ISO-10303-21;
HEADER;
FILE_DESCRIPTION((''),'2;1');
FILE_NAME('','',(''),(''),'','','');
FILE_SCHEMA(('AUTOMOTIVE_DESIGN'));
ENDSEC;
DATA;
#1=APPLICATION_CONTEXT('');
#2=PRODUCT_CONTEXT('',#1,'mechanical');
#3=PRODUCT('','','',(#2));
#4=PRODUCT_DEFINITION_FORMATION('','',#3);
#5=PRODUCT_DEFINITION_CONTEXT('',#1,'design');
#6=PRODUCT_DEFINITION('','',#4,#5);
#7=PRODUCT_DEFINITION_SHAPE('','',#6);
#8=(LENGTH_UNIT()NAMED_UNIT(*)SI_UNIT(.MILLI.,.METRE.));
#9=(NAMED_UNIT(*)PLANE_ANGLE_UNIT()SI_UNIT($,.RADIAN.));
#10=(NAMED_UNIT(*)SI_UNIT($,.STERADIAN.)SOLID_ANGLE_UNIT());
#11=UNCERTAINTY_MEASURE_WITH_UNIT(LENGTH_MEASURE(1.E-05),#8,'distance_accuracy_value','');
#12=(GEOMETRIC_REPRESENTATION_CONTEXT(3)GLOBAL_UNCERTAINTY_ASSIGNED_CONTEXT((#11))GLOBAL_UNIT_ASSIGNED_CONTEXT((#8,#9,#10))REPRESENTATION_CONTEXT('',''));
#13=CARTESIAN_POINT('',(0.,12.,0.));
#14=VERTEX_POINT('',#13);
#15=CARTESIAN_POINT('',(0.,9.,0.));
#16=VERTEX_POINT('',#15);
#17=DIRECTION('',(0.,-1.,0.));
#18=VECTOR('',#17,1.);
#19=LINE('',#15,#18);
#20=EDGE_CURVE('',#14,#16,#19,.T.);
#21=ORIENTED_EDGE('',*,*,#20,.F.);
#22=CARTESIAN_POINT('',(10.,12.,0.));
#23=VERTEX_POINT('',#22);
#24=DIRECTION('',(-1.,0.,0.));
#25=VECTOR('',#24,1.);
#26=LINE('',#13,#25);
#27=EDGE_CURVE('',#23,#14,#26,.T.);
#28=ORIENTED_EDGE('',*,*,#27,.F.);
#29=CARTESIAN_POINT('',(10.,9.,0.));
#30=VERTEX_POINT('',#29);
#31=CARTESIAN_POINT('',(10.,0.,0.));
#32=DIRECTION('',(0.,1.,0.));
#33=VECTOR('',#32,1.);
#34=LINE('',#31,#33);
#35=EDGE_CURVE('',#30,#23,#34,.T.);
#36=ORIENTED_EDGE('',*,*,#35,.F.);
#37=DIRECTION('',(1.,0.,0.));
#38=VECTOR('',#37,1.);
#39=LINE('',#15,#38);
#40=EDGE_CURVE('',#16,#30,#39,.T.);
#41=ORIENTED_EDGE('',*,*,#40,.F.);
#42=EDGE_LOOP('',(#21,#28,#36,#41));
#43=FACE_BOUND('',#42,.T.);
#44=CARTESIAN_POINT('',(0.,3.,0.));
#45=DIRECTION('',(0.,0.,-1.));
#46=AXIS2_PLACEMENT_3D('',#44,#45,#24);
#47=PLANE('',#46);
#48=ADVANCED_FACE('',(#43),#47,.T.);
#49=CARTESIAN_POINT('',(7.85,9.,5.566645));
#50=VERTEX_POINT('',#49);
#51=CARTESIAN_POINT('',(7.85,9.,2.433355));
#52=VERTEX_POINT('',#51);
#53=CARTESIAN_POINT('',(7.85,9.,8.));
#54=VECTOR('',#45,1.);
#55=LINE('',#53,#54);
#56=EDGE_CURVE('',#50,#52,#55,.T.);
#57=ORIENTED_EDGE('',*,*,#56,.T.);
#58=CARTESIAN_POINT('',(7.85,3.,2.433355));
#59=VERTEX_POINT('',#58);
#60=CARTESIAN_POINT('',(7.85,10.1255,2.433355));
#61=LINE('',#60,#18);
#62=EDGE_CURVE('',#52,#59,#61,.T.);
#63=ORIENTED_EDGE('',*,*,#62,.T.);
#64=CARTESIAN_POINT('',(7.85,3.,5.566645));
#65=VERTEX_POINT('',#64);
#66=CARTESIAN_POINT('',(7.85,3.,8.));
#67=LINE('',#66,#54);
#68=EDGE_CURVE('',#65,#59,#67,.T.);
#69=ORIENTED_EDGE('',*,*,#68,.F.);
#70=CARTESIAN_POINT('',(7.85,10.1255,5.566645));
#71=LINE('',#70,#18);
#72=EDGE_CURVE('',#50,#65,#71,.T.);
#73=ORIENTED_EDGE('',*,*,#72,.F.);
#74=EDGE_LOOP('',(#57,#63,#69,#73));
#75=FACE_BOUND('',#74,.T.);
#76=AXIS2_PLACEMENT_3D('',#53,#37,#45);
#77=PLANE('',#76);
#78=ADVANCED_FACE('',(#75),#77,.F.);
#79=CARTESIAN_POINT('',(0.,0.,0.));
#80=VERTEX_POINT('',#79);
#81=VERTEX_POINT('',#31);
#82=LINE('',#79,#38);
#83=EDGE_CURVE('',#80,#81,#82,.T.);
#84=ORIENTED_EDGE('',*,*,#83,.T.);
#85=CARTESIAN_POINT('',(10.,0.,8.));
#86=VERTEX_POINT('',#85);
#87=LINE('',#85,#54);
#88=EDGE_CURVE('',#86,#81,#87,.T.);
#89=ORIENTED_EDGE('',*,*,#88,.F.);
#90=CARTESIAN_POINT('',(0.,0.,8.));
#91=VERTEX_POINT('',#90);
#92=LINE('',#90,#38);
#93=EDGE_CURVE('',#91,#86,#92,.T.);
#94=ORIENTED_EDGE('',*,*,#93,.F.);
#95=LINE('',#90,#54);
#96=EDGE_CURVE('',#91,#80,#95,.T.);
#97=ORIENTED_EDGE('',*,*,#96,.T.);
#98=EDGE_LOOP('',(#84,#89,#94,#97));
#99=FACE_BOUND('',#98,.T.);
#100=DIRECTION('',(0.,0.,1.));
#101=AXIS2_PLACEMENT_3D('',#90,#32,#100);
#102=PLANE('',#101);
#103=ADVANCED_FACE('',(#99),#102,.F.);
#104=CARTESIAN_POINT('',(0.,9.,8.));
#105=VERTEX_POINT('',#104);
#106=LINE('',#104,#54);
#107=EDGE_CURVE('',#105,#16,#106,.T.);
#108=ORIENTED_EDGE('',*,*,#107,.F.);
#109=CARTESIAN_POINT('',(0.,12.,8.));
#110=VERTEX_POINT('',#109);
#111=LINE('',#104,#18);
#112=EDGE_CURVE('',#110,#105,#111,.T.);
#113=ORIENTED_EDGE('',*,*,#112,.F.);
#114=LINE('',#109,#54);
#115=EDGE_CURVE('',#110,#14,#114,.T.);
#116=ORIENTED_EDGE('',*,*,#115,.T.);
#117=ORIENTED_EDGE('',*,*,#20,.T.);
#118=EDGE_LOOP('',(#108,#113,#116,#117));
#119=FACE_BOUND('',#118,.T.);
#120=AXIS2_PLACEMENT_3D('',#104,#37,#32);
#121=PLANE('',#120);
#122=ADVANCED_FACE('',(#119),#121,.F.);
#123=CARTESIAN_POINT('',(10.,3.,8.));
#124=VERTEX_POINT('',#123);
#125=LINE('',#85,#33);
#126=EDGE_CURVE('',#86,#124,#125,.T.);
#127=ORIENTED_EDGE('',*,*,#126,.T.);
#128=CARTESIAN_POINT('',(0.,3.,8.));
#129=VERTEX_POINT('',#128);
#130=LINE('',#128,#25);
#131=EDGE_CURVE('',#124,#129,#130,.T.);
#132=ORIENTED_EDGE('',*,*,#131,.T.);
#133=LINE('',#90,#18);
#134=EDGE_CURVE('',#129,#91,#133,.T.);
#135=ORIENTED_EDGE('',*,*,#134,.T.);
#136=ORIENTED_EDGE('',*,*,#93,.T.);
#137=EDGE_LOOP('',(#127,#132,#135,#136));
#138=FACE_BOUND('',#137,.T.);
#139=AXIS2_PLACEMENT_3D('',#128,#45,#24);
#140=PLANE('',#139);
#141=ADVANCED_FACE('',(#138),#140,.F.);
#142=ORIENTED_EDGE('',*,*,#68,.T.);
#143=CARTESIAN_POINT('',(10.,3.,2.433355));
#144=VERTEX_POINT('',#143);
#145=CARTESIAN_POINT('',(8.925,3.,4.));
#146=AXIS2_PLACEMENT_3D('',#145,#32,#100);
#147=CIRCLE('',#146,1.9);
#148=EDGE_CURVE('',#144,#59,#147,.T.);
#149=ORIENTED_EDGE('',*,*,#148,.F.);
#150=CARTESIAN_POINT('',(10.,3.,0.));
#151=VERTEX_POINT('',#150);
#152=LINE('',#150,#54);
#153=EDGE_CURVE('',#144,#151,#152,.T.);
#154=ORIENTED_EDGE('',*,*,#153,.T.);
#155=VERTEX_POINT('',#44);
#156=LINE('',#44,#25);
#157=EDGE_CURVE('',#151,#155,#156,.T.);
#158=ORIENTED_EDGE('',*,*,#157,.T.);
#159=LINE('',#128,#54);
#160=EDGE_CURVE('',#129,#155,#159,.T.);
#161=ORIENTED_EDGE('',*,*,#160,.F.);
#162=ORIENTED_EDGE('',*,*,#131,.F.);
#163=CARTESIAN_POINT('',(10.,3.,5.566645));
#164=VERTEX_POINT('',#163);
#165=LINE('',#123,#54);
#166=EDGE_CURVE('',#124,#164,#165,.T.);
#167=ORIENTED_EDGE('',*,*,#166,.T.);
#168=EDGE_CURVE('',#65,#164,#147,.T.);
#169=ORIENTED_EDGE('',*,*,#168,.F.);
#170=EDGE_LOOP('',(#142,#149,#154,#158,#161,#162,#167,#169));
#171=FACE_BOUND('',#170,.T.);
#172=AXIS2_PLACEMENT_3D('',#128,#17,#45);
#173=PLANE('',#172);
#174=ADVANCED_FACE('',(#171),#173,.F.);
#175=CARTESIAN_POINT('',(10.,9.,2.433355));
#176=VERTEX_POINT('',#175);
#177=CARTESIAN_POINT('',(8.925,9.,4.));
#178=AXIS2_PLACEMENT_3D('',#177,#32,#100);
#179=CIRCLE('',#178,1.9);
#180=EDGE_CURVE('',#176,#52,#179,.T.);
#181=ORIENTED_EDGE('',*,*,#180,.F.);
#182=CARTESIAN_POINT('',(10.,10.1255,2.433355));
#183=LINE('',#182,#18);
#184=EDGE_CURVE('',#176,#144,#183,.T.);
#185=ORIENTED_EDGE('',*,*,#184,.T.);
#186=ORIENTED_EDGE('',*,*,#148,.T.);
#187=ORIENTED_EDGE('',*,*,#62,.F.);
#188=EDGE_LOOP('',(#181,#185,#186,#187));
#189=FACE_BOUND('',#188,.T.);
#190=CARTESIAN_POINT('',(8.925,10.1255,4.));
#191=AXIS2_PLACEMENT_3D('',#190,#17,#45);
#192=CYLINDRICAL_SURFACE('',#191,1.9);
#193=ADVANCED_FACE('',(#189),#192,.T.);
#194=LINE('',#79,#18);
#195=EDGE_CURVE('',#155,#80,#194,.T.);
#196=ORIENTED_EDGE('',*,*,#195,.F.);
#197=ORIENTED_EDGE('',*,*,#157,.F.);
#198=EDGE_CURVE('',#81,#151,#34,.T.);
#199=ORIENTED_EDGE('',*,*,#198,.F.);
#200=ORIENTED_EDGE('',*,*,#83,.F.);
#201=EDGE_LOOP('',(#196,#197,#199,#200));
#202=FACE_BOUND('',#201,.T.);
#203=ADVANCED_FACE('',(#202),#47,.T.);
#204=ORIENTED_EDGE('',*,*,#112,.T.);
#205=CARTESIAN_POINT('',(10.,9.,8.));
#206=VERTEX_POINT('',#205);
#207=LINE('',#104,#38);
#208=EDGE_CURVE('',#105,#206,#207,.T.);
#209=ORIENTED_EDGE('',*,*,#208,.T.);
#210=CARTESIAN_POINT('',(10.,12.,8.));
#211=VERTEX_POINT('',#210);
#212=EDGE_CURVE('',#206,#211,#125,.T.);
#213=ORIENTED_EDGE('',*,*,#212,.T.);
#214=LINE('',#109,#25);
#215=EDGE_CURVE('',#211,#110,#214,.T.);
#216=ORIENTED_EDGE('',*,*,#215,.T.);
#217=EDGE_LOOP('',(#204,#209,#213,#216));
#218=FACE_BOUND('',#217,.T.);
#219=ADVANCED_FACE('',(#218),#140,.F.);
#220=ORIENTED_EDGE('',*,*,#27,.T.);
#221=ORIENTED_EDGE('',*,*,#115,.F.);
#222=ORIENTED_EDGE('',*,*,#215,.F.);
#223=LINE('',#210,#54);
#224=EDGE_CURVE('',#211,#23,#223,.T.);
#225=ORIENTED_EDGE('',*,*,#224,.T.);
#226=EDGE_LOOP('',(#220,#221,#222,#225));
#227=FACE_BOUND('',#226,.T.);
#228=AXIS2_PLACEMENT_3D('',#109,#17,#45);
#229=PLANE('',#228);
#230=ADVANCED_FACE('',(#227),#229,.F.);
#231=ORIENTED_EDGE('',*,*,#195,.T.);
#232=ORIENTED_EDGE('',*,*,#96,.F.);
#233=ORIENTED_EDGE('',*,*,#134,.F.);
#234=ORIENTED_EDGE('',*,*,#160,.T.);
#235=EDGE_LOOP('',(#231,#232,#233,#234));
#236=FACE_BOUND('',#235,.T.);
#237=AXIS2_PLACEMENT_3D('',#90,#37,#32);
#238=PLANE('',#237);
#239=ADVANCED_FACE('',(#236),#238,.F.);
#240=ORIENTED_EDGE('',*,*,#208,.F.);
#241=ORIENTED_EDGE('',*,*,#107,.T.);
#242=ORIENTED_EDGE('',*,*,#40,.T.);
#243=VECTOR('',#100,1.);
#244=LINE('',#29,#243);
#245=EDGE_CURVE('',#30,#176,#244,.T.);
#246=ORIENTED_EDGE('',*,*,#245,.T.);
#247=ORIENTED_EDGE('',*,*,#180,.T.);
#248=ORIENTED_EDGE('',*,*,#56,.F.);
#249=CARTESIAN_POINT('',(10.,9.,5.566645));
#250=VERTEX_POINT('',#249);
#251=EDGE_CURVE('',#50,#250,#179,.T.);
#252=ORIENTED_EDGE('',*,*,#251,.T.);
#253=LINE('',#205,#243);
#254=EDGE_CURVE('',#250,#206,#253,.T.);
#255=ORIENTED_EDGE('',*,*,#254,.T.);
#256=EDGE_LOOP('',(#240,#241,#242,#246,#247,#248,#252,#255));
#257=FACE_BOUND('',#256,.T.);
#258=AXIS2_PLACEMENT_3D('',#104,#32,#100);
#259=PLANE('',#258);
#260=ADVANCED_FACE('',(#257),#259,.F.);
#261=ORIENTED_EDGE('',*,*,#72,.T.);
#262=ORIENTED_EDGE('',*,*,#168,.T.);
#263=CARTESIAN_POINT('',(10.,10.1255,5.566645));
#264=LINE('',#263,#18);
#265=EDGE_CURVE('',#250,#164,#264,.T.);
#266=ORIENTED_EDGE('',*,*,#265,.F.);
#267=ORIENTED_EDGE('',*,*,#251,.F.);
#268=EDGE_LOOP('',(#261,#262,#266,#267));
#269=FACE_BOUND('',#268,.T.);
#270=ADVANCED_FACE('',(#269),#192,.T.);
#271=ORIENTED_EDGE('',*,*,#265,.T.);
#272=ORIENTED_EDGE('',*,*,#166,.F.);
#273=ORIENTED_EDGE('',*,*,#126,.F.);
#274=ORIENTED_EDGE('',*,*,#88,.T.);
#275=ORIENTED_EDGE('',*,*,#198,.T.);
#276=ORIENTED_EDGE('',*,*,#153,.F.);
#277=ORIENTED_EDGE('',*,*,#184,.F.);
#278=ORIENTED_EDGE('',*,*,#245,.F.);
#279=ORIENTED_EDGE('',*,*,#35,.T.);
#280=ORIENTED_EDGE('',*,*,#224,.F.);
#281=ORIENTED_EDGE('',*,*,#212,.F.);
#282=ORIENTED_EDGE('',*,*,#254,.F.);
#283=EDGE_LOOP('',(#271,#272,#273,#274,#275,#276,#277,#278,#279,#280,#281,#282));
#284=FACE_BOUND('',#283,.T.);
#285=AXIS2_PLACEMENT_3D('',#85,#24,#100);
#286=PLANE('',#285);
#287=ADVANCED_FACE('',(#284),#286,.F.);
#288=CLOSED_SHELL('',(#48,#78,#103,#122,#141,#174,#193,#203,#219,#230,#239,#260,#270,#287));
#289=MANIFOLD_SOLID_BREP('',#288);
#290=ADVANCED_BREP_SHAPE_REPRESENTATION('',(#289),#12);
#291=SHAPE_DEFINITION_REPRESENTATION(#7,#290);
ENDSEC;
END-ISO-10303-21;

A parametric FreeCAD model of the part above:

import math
import FreeCAD as App
import Part
import Sketcher

V = App.Vector
Q = App.Units.Quantity


def add_polygon(sketch, points):
    """Adds a closed chain of lines whose ends are joined by coincident constraints."""
    first, n = sketch.GeometryCount, len(points)
    for a, b in zip(points, points[1:] + points[:1]):
        sketch.addGeometry(Part.LineSegment(App.Vector(*a, 0), App.Vector(*b, 0)), False)
    for i in range(n):
        sketch.addConstraint(Sketcher.Constraint("Coincident", first + i, 2, first + (i + 1) % n, 1))

doc = App.newDocument("Part")
params = doc.addObject("Spreadsheet::Sheet", "Params")
for row, (alias, value) in enumerate([
    ("sketch1_width", "10 mm"),
    ("sketch1_height", "3 mm"),
    ("sketch1_height2", "6 mm"),
    ("sketch1_width2", "7.85 mm"),
    ("pad1_length", "8 mm"),
    ("sketch2_width", "6 mm"),
    ("sketch2_height", "2.1 mm"),
    ("pocket1_length", "8 mm"),
    ("sketch3_radius", "1.9 mm"),
    ("pocket2_length", "6 mm"),
], start=1):
    params.set(f"A{row}", alias)
    params.set(f"B{row}", "=" + value)
    params.setAlias(f"B{row}", alias)

body = doc.addObject("PartDesign::Body", "Body")

sketch1 = body.newObject("Sketcher::SketchObject", "Sketch")
sketch1.AttachmentSupport = (doc.getObject("XY_Plane"), [""])
sketch1.MapMode = "FlatFace"
add_polygon(sketch1, [(0, 12), (0, 9), (7.85, 9), (7.85, 3), (0, 3), (0, 0), (10, 0), (10, 12)])
sketch1.addConstraint([
    Sketcher.Constraint("Vertical", 0),
    Sketcher.Constraint("Horizontal", 1),
    Sketcher.Constraint("Vertical", 2),
    Sketcher.Constraint("Horizontal", 3),
    Sketcher.Constraint("Vertical", 4),
    Sketcher.Constraint("Horizontal", 5),
    Sketcher.Constraint("Vertical", 6),
    Sketcher.Constraint("Horizontal", 7),
    Sketcher.Constraint("Coincident", 4, 2, -1, 1),
    Sketcher.Constraint("PointOnObject", 0, 2, -2),
    Sketcher.Constraint("Equal", 0, 4),
    Sketcher.Constraint("DistanceX", 5, 1, 5, 2, Q("10 mm")),
    Sketcher.Constraint("DistanceY", 0, 2, 0, 1, Q("3 mm")),
    Sketcher.Constraint("DistanceY", 2, 2, 2, 1, Q("6 mm")),
    Sketcher.Constraint("DistanceX", 1, 1, 1, 2, Q("7.85 mm")),
])
sketch1.setExpression("Constraints[19]", "Params.sketch1_width")
sketch1.setExpression("Constraints[20]", "Params.sketch1_height")
sketch1.setExpression("Constraints[21]", "Params.sketch1_height2")
sketch1.setExpression("Constraints[22]", "Params.sketch1_width2")
pad1 = body.newObject("PartDesign::Pad", "Pad")
pad1.Profile = sketch1
pad1.setExpression("Length", "Params.pad1_length")

sketch2 = body.newObject("Sketcher::SketchObject", "Sketch001")
sketch2.AttachmentSupport = (doc.getObject("YZ_Plane"), [""])
sketch2.MapMode = "FlatFace"
sketch2.AttachmentOffset = App.Placement(V(0, 0, 10), App.Rotation())
add_polygon(sketch2, [(9, 8), (3, 8), (3, 5.9), (9, 5.9)])
add_polygon(sketch2, [(9, 2.1), (3, 2.1), (3, 0), (9, 0)])
sketch2.addConstraint([
    Sketcher.Constraint("Horizontal", 0),
    Sketcher.Constraint("Vertical", 1),
    Sketcher.Constraint("Horizontal", 2),
    Sketcher.Constraint("Vertical", 3),
    Sketcher.Constraint("Horizontal", 4),
    Sketcher.Constraint("Vertical", 5),
    Sketcher.Constraint("Horizontal", 6),
    Sketcher.Constraint("Vertical", 7),
    Sketcher.Constraint("PointOnObject", 5, 2, -1),
    Sketcher.Constraint("Vertical", 1, 2, 4, 2),
    Sketcher.Constraint("Vertical", 3, 2, 6, 2),
    Sketcher.Constraint("Equal", 3, 5),
    Sketcher.Constraint("DistanceX", 0, 2, 0, 1, Q("6 mm")),
    Sketcher.Constraint("DistanceY", 1, 2, 1, 1, Q("2.1 mm")),
    Sketcher.Constraint("DistanceX", -1, 1, 0, 2, Q("3 mm")),
    Sketcher.Constraint("DistanceY", -1, 1, 0, 2, Q("8 mm")),
])
sketch2.setExpression("Constraints[20]", "Params.sketch2_width")
sketch2.setExpression("Constraints[21]", "Params.sketch2_height")
pocket1 = body.newObject("PartDesign::Pocket", "Pocket")
pocket1.Profile = sketch2
pocket1.setExpression("Length", "Params.pocket1_length")

sketch3 = body.newObject("Sketcher::SketchObject", "Sketch002")
sketch3.AttachmentSupport = (doc.getObject("XZ_Plane"), [""])
sketch3.MapMode = "FlatFace"
sketch3.AttachmentOffset = App.Placement(V(0, 0, -3), App.Rotation())
sketch3.addGeometry([
    Part.LineSegment(V(10, 2.1, 0), V(8.925, 2.1, 0)),
    Part.ArcOfCircle(Part.Circle(V(8.925, 4, 0), V(0, 0, 1), 1.9), math.radians(-90), math.radians(-55.542868)),
    Part.LineSegment(V(10, 2.433355, 0), V(10, 2.1, 0)),
    Part.LineSegment(V(8.925, 2.1, 0), V(7.85, 2.1, 0)),
    Part.LineSegment(V(7.85, 2.1, 0), V(7.85, 2.433355, 0)),
    Part.ArcOfCircle(Part.Circle(V(8.925, 4, 0), V(0, 0, 1), 1.9), math.radians(-124.457132), math.radians(-90)),
    Part.LineSegment(V(7.85, 5.566645, 0), V(7.85, 5.9, 0)),
    Part.LineSegment(V(7.85, 5.9, 0), V(8.925, 5.9, 0)),
    Part.ArcOfCircle(Part.Circle(V(8.925, 4, 0), V(0, 0, 1), 1.9), math.radians(90), math.radians(124.457132)),
    Part.ArcOfCircle(Part.Circle(V(8.925, 4, 0), V(0, 0, 1), 1.9), math.radians(55.542868), math.radians(90)),
    Part.LineSegment(V(8.925, 5.9, 0), V(10, 5.9, 0)),
    Part.LineSegment(V(10, 5.9, 0), V(10, 5.566645, 0)),
], False)
sketch3.addConstraint([
    Sketcher.Constraint("Tangent", 0, 2, 1, 1),
    Sketcher.Constraint("Coincident", 1, 2, 2, 1),
    Sketcher.Constraint("Coincident", 2, 2, 0, 1),
    Sketcher.Constraint("Coincident", 3, 2, 4, 1),
    Sketcher.Constraint("Coincident", 4, 2, 5, 1),
    Sketcher.Constraint("Tangent", 5, 2, 3, 1),
    Sketcher.Constraint("Coincident", 6, 2, 7, 1),
    Sketcher.Constraint("Tangent", 7, 2, 8, 1),
    Sketcher.Constraint("Coincident", 8, 2, 6, 1),
    Sketcher.Constraint("Tangent", 9, 2, 10, 1),
    Sketcher.Constraint("Coincident", 10, 2, 11, 1),
    Sketcher.Constraint("Coincident", 11, 2, 9, 1),
    Sketcher.Constraint("Horizontal", 0),
    Sketcher.Constraint("Vertical", 2),
    Sketcher.Constraint("Horizontal", 3),
    Sketcher.Constraint("Vertical", 4),
    Sketcher.Constraint("Vertical", 6),
    Sketcher.Constraint("Horizontal", 7),
    Sketcher.Constraint("Horizontal", 10),
    Sketcher.Constraint("Vertical", 11),
    Sketcher.Constraint("Coincident", 5, 3, 1, 3),
    Sketcher.Constraint("Coincident", 8, 3, 1, 3),
    Sketcher.Constraint("Coincident", 9, 3, 1, 3),
    Sketcher.Constraint("Equal", 1, 5),
    Sketcher.Constraint("Equal", 5, 8),
    Sketcher.Constraint("Equal", 8, 9),
    Sketcher.Constraint("Horizontal", 1, 2, 4, 2),
    Sketcher.Constraint("Horizontal", 8, 2, 11, 2),
    Sketcher.Constraint("Vertical", 4, 2, 6, 2),
    Sketcher.Constraint("Radius", 1, Q("1.9 mm")),
    Sketcher.Constraint("DistanceY", -1, 1, 1, 3, Q("4 mm")),
    Sketcher.Constraint("DistanceX", -1, 1, 1, 2, Q("10 mm")),
    Sketcher.Constraint("DistanceX", 0, 2, 0, 1, Q("1.075 mm")),
])
sketch3.setExpression("Constraints[29]", "Params.sketch3_radius")
pocket2 = body.newObject("PartDesign::Pocket", "Pocket001")
pocket2.Profile = sketch3
pocket2.setExpression("Length", "Params.pocket2_length")

doc.recompute()
